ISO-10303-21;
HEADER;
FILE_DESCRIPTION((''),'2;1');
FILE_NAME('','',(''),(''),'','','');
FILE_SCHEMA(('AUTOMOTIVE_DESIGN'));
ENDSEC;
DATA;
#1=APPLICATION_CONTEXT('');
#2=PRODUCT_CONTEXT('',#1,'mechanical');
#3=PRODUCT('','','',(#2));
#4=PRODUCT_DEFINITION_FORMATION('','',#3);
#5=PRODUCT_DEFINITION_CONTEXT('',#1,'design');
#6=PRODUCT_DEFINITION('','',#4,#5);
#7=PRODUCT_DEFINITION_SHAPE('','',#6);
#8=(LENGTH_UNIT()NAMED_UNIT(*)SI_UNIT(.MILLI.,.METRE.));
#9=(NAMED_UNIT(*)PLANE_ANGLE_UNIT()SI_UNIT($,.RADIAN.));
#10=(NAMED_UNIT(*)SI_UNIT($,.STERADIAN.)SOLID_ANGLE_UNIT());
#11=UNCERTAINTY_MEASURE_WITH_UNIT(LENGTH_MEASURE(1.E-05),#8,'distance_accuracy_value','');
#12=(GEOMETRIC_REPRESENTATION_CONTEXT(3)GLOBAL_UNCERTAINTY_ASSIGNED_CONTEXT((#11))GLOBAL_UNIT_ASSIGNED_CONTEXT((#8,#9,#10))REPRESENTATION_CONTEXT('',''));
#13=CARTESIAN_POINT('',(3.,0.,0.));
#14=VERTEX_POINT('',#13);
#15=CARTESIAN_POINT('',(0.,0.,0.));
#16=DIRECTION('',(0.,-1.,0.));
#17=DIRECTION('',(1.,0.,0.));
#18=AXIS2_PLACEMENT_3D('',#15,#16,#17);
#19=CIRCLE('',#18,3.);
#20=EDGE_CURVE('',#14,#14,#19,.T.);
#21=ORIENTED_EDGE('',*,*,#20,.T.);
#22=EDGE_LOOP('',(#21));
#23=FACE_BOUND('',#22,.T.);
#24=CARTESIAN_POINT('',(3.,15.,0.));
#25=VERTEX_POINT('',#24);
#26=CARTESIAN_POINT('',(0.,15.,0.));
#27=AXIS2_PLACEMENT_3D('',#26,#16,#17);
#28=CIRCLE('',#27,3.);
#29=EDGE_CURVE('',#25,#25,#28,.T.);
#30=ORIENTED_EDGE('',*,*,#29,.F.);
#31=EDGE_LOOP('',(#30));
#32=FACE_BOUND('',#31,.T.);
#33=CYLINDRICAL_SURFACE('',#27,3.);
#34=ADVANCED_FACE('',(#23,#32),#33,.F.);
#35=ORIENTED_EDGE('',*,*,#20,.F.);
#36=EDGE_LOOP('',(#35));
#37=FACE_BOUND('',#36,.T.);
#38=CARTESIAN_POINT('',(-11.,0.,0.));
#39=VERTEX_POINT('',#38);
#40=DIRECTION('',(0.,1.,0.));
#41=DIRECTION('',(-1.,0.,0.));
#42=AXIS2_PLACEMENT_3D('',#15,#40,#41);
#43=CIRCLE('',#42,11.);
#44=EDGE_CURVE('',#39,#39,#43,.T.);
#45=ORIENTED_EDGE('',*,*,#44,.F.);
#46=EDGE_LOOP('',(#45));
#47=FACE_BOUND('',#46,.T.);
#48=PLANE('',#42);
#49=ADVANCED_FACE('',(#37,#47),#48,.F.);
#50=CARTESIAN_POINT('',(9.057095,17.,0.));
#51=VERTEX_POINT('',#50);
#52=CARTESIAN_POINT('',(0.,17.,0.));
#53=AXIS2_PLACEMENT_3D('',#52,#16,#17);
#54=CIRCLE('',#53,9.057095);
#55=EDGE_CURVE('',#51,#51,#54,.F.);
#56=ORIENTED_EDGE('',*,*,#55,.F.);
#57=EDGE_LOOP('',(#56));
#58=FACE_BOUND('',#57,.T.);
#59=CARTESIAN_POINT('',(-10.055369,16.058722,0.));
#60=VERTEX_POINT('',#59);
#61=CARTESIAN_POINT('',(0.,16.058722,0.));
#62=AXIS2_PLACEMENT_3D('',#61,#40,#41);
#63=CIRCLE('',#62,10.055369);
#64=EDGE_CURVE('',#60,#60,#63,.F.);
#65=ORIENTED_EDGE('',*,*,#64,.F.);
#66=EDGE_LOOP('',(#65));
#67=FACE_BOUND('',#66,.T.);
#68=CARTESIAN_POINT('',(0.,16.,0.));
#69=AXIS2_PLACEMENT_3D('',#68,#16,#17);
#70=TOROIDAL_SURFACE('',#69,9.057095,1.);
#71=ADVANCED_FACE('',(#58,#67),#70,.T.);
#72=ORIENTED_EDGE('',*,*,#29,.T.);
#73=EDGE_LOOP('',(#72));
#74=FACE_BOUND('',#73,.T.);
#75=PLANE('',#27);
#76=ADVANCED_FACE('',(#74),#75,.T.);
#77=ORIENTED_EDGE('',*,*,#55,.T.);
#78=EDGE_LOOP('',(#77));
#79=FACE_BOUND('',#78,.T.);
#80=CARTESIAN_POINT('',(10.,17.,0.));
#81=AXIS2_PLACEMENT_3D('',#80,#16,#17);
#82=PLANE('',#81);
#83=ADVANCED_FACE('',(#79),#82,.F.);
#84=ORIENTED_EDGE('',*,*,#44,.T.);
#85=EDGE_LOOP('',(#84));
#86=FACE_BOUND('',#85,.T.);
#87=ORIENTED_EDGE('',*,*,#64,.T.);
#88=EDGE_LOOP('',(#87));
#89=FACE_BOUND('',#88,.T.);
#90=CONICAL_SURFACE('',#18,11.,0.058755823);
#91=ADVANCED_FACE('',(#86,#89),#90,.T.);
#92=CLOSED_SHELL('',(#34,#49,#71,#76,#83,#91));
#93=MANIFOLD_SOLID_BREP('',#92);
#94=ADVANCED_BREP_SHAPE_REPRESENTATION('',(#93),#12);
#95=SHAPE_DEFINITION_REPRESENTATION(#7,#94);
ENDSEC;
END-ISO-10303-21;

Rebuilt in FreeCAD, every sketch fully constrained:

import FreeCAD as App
import Part
import Sketcher
from FreeCAD import Vector
Q = App.Units.Quantity


def edges_at(feature, points):
    """Names of the edges that pass closest to the given points."""
    edges = feature.Shape.Edges
    near = lambda p: min(range(len(edges)), key=lambda i: edges[i].distToShape(Part.Vertex(*p))[0])
    return sorted({f"Edge{near(p) + 1}" for p in points})


def add_polygon(sketch, points):
    """Adds a closed chain of lines whose ends are joined by coincident constraints."""
    first, n = sketch.GeometryCount, len(points)
    for a, b in zip(points, points[1:] + points[:1]):
        sketch.addGeometry(Part.LineSegment(App.Vector(*a, 0), App.Vector(*b, 0)), False)
    for i in range(n):
        sketch.addConstraint(Sketcher.Constraint("Coincident", first + i, 2, first + (i + 1) % n, 1))

doc = App.newDocument("Part")
body = doc.addObject("PartDesign::Body", "Body")

sketch1 = body.newObject("Sketcher::SketchObject", "Sketch")
sketch1.AttachmentSupport = (doc.getObject("XY_Plane"), [""])
sketch1.MapMode = "FlatFace"
add_polygon(sketch1, [(0, 0), (11, 0), (10, 17), (0, 17)])
sketch1.addConstraint(Sketcher.Constraint("Horizontal", 0))
sketch1.addConstraint(Sketcher.Constraint("Horizontal", 2))
sketch1.addConstraint(Sketcher.Constraint("Vertical", 3))
sketch1.addConstraint(Sketcher.Constraint("Coincident", 3, 2, -1, 1))
sketch1.addConstraint(Sketcher.Constraint("DistanceX", 0, 1, 0, 2, Q("11 mm")))
sketch1.addConstraint(Sketcher.Constraint("DistanceX", 2, 2, 2, 1, Q("10 mm")))
sketch1.addConstraint(Sketcher.Constraint("DistanceY", 3, 2, 3, 1, Q("17 mm")))
revolution = body.newObject("PartDesign::Revolution", "Revolution")
revolution.Profile = sketch1
revolution.ReferenceAxis = (sketch1, ["V_Axis"])
revolution.Angle = 360

sketch2 = body.newObject("Sketcher::SketchObject", "Sketch001")
sketch2.AttachmentSupport = (doc.getObject("XZ_Plane"), [""])
sketch2.MapMode = "FlatFace"
sketch2.addGeometry(Part.Circle(Vector(0, 0, 0), Vector(0, 0, 1), 3), False)
sketch2.addConstraint(Sketcher.Constraint("Coincident", 0, 3, -1, 1))
sketch2.addConstraint(Sketcher.Constraint("Diameter", 0, Q("6 mm")))
pocket1 = body.newObject("PartDesign::Pocket", "Pocket")
pocket1.Profile = sketch2
pocket1.Length = 15
doc.recompute()

fillet = body.newObject("PartDesign::Fillet", "Fillet")
fillet.Base = (pocket1, edges_at(pocket1, [(10, 17, 0)]))
fillet.Radius = 1

doc.recompute()
